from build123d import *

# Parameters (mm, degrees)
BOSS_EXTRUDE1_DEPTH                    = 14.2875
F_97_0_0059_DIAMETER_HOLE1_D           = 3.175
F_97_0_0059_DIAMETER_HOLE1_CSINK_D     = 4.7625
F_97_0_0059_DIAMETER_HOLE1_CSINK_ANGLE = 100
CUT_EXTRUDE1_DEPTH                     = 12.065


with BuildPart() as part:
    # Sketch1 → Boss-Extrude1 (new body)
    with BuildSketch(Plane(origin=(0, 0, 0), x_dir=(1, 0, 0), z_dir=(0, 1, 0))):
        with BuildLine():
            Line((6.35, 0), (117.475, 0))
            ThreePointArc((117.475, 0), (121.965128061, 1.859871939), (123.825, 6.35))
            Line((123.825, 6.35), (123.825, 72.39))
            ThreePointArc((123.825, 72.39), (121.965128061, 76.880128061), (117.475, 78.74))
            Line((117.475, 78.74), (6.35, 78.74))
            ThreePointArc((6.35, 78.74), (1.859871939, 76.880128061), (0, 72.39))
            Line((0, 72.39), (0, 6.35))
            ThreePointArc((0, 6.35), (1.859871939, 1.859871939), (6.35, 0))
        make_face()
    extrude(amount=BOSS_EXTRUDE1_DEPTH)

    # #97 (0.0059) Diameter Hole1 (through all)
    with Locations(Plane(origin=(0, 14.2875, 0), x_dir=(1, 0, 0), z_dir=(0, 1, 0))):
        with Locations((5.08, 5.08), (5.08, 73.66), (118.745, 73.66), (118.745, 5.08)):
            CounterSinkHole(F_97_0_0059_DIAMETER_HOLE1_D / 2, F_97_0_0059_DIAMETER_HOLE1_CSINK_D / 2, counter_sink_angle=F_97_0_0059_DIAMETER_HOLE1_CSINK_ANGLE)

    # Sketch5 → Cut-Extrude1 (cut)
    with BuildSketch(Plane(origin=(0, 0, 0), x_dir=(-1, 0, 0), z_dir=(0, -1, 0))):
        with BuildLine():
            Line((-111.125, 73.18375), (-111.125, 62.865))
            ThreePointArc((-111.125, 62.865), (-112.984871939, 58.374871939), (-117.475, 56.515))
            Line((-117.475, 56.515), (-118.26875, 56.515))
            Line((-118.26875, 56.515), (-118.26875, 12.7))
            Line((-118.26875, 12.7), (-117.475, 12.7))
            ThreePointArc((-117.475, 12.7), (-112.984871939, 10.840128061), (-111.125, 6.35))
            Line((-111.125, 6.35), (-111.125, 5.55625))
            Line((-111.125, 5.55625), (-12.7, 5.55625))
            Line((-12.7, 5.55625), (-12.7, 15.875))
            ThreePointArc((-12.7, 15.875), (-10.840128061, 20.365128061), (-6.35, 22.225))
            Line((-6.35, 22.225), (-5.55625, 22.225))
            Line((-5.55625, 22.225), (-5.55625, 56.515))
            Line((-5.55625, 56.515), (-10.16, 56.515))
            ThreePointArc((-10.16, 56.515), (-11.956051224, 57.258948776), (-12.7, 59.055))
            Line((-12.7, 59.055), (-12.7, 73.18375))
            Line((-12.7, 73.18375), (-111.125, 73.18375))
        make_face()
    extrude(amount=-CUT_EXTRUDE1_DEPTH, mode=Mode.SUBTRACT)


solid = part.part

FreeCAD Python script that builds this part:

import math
import FreeCAD as App
import Part
import Sketcher
Q = App.Units.Quantity

doc = App.newDocument("Part")
body = doc.addObject("PartDesign::Body", "Body")

# Sketch on XZ plane
sketch1 = doc.addObject("Sketcher::SketchObject", "Sketch")
body.addObject(sketch1)
sketch1.AttachmentSupport = (doc.XZ_Plane, [""])
sketch1.MapMode = "FlatFace"
sketch1.addGeometry([
    Part.LineSegment(App.Vector(6, 0, 0), App.Vector(117, 0, 0)),  # 0
    Part.ArcOfCircle(Part.Circle(App.Vector(117, -6, 0), App.Vector(0, 0, 1), 6), math.radians(0), math.radians(90)),  # 1
    Part.LineSegment(App.Vector(124, -6, 0), App.Vector(124, -72, 0)),  # 2
    Part.ArcOfCircle(Part.Circle(App.Vector(117, -72, 0), App.Vector(0, 0, 1), 6), math.radians(-90), math.radians(0)),  # 3
    Part.LineSegment(App.Vector(117, -79, 0), App.Vector(6, -79, 0)),  # 4
    Part.ArcOfCircle(Part.Circle(App.Vector(6, -72, 0), App.Vector(0, 0, 1), 6), math.radians(180), math.radians(270)),  # 5
    Part.LineSegment(App.Vector(0, -72, 0), App.Vector(0, -6, 0)),  # 6
    Part.ArcOfCircle(Part.Circle(App.Vector(6, -6, 0), App.Vector(0, 0, 1), 6), math.radians(90), math.radians(180)),  # 7
], False)
sketch1.addConstraint([
    Sketcher.Constraint("Tangent", 0, 2, 1, 2),
    Sketcher.Constraint("Tangent", 1, 1, 2, 1),
    Sketcher.Constraint("Tangent", 2, 2, 3, 2),
    Sketcher.Constraint("Tangent", 3, 1, 4, 1),
    Sketcher.Constraint("Tangent", 4, 2, 5, 2),
    Sketcher.Constraint("Tangent", 5, 1, 6, 1),
    Sketcher.Constraint("Tangent", 6, 2, 7, 2),
    Sketcher.Constraint("Tangent", 7, 1, 0, 1),
    Sketcher.Constraint("Horizontal", 0),
    Sketcher.Constraint("Vertical", 2),
    Sketcher.Constraint("Horizontal", 4),
    Sketcher.Constraint("Vertical", 6),
    Sketcher.Constraint("Equal", 1, 3),
    Sketcher.Constraint("Equal", 3, 5),
    Sketcher.Constraint("Equal", 5, 7),
    Sketcher.Constraint("PointOnObject", 0, 2, -1),
    Sketcher.Constraint("PointOnObject", 5, 1, -2),
    Sketcher.Constraint("Radius", 1, Q("0.25 in")),
    Sketcher.Constraint("DistanceY", 2, 2, 2, 1, Q("2.6 in")),
    Sketcher.Constraint("DistanceX", 0, 1, 0, 2, Q("4.375 in")),
])
pad1 = doc.addObject("PartDesign::Pad", "Pad")
body.addObject(pad1)
pad1.Profile = sketch1
pad1.Length = Q("0.5625 in")
pad1.Reversed = True

# Sketch on XZ plane
sketch2 = doc.addObject("Sketcher::SketchObject", "Sketch001")
body.addObject(sketch2)
sketch2.AttachmentSupport = (doc.XZ_Plane, [""])
sketch2.MapMode = "FlatFace"
sketch2.AttachmentOffset = App.Placement(App.Vector(0, 0, -0.5625 * 25.4), App.Rotation())
sketch2.addGeometry([
    Part.Circle(App.Vector(5.1, -5.1, 0), App.Vector(0, 0, 1), 1.6),
    Part.Circle(App.Vector(5.1, -73.7, 0), App.Vector(0, 0, 1), 1.6),
    Part.Circle(App.Vector(118.7, -73.7, 0), App.Vector(0, 0, 1), 1.6),
    Part.Circle(App.Vector(118.7, -5.1, 0), App.Vector(0, 0, 1), 1.6),
], False)
sketch2.addConstraint([
    Sketcher.Constraint("Equal", 0, 1),
    Sketcher.Constraint("Equal", 1, 2),
    Sketcher.Constraint("Equal", 2, 3),
    Sketcher.Constraint("Horizontal", 1, 3, 2, 3),
    Sketcher.Constraint("Horizontal", 0, 3, 3, 3),
    Sketcher.Constraint("Vertical", 0, 3, 1, 3),
    Sketcher.Constraint("Vertical", 2, 3, 3, 3),
    Sketcher.Constraint("Diameter", 0, Q("0.125 in")),
    Sketcher.Constraint("DistanceX", -1, 1, 0, 3, Q("0.2 in")),
    Sketcher.Constraint("DistanceY", 0, 3, -1, 1, Q("0.2 in")),
    Sketcher.Constraint("DistanceY", 1, 3, -1, 1, Q("2.9 in")),
    Sketcher.Constraint("DistanceX", -1, 1, 2, 3, Q("4.675 in")),
])
doc.recompute()
hole = doc.addObject("PartDesign::Hole", "Hole")
body.addObject(hole)
hole.Profile = sketch2
hole.ThreadType = "None"
hole.Diameter = Q("0.125 in")
hole.DepthType = "ThroughAll"
hole.HoleCutType = "Countersink"
hole.HoleCutDiameter = Q("0.1875 in")
hole.HoleCutCountersinkAngle = 100
hole.Reversed = True

# Sketch on XZ plane
sketch3 = doc.addObject("Sketcher::SketchObject", "Sketch002")
body.addObject(sketch3)
sketch3.AttachmentSupport = (doc.XZ_Plane, [""])
sketch3.MapMode = "FlatFace"
sketch3.addGeometry([
    Part.LineSegment(App.Vector(111.1, -73.2, 0), App.Vector(111.1, -62.9, 0)),  # 0
    Part.ArcOfCircle(Part.Circle(App.Vector(117.5, -62.9, 0), App.Vector(0, 0, 1), 6.3), math.radians(90), math.radians(180)),  # 1
    Part.LineSegment(App.Vector(117.5, -56.5, 0), App.Vector(118.3, -56.5, 0)),  # 2
    Part.LineSegment(App.Vector(118.3, -56.5, 0), App.Vector(118.3, -12.7, 0)),  # 3
    Part.LineSegment(App.Vector(118.3, -12.7, 0), App.Vector(117.5, -12.7, 0)),  # 4
    Part.ArcOfCircle(Part.Circle(App.Vector(117.5, -6.4, 0), App.Vector(0, 0, 1), 6.3), math.radians(180), math.radians(270)),  # 5
    Part.LineSegment(App.Vector(111.1, -6.3, 0), App.Vector(111.1, -5.6, 0)),  # 6
    Part.LineSegment(App.Vector(111.1, -5.6, 0), App.Vector(12.7, -5.6, 0)),  # 7
    Part.LineSegment(App.Vector(12.7, -5.6, 0), App.Vector(12.7, -15.9, 0)),  # 8
    Part.ArcOfCircle(Part.Circle(App.Vector(6.4, -15.9, 0), App.Vector(0, 0, 1), 6.3), math.radians(-90), math.radians(0)),  # 9
    Part.LineSegment(App.Vector(6.3, -22.2, 0), App.Vector(5.6, -22.2, 0)),  # 10
    Part.LineSegment(App.Vector(5.6, -22.2, 0), App.Vector(5.6, -56.5, 0)),  # 11
    Part.LineSegment(App.Vector(5.6, -56.5, 0), App.Vector(10.2, -56.5, 0)),  # 12
    Part.ArcOfCircle(Part.Circle(App.Vector(10.2, -59.1, 0), App.Vector(0, 0, 1), 2.5), math.radians(0), math.radians(90)),  # 13
    Part.LineSegment(App.Vector(12.7, -59.1, 0), App.Vector(12.7, -73.2, 0)),  # 14
    Part.LineSegment(App.Vector(12.7, -73.2, 0), App.Vector(111.1, -73.2, 0)),  # 15
], False)
sketch3.addConstraint([
    Sketcher.Constraint("Tangent", 0, 2, 1, 2),
    Sketcher.Constraint("Tangent", 1, 1, 2, 1),
    Sketcher.Constraint("Coincident", 2, 2, 3, 1),
    Sketcher.Constraint("Coincident", 3, 2, 4, 1),
    Sketcher.Constraint("Tangent", 4, 2, 5, 2),
    Sketcher.Constraint("Tangent", 5, 1, 6, 1),
    Sketcher.Constraint("Coincident", 6, 2, 7, 1),
    Sketcher.Constraint("Coincident", 7, 2, 8, 1),
    Sketcher.Constraint("Tangent", 8, 2, 9, 2),
    Sketcher.Constraint("Tangent", 9, 1, 10, 1),
    Sketcher.Constraint("Coincident", 10, 2, 11, 1),
    Sketcher.Constraint("Coincident", 11, 2, 12, 1),
    Sketcher.Constraint("Tangent", 12, 2, 13, 2),
    Sketcher.Constraint("Tangent", 13, 1, 14, 1),
    Sketcher.Constraint("Coincident", 14, 2, 15, 1),
    Sketcher.Constraint("Coincident", 15, 2, 0, 1),
    Sketcher.Constraint("Vertical", 0),
    Sketcher.Constraint("Horizontal", 2),
    Sketcher.Constraint("Vertical", 3),
    Sketcher.Constraint("Horizontal", 4),
    Sketcher.Constraint("Vertical", 6),
    Sketcher.Constraint("Horizontal", 7),
    Sketcher.Constraint("Vertical", 8),
    Sketcher.Constraint("Horizontal", 10),
    Sketcher.Constraint("Vertical", 11),
    Sketcher.Constraint("Horizontal", 12),
    Sketcher.Constraint("Vertical", 14),
    Sketcher.Constraint("Horizontal", 15),
    Sketcher.Constraint("Equal", 1, 5),
    Sketcher.Constraint("Equal", 5, 9),
    Sketcher.Constraint("Horizontal", 2, 2, 11, 2),
    Sketcher.Constraint("Vertical", 1, 3, 5, 3),
    Sketcher.Constraint("Vertical", 8, 2, 13, 1),
    Sketcher.Constraint("Equal", 4, 10),
    Sketcher.Constraint("Equal", 10, 6),
    Sketcher.Constraint("Equal", 0, 8),
    Sketcher.Constraint("Radius", 13, Q("0.1 in")),
    Sketcher.Constraint("Radius", 1, Q("0.25 in")),
    Sketcher.Constraint("DistanceY", 11, 2, 11, 1, Q("1.35 in")),
    Sketcher.Constraint("DistanceX", -1, 1, 13, 3, Q("0.4 in")),
    Sketcher.Constraint("DistanceY", 3, 2, -1, 1, Q("0.5 in")),
    Sketcher.Constraint("DistanceX", 2, 1, 2, 2, Q("0.03125 in")),
    Sketcher.Constraint("DistanceX", 7, 2, 7, 1, Q("3.875 in")),
    Sketcher.Constraint("DistanceY", 0, 1, 0, 2, Q("0.40625 in")),
])
pocket1 = doc.addObject("PartDesign::Pocket", "Pocket")
body.addObject(pocket1)
pocket1.Profile = sketch3
pocket1.Length = Q("0.475 in")

doc.recompute()
